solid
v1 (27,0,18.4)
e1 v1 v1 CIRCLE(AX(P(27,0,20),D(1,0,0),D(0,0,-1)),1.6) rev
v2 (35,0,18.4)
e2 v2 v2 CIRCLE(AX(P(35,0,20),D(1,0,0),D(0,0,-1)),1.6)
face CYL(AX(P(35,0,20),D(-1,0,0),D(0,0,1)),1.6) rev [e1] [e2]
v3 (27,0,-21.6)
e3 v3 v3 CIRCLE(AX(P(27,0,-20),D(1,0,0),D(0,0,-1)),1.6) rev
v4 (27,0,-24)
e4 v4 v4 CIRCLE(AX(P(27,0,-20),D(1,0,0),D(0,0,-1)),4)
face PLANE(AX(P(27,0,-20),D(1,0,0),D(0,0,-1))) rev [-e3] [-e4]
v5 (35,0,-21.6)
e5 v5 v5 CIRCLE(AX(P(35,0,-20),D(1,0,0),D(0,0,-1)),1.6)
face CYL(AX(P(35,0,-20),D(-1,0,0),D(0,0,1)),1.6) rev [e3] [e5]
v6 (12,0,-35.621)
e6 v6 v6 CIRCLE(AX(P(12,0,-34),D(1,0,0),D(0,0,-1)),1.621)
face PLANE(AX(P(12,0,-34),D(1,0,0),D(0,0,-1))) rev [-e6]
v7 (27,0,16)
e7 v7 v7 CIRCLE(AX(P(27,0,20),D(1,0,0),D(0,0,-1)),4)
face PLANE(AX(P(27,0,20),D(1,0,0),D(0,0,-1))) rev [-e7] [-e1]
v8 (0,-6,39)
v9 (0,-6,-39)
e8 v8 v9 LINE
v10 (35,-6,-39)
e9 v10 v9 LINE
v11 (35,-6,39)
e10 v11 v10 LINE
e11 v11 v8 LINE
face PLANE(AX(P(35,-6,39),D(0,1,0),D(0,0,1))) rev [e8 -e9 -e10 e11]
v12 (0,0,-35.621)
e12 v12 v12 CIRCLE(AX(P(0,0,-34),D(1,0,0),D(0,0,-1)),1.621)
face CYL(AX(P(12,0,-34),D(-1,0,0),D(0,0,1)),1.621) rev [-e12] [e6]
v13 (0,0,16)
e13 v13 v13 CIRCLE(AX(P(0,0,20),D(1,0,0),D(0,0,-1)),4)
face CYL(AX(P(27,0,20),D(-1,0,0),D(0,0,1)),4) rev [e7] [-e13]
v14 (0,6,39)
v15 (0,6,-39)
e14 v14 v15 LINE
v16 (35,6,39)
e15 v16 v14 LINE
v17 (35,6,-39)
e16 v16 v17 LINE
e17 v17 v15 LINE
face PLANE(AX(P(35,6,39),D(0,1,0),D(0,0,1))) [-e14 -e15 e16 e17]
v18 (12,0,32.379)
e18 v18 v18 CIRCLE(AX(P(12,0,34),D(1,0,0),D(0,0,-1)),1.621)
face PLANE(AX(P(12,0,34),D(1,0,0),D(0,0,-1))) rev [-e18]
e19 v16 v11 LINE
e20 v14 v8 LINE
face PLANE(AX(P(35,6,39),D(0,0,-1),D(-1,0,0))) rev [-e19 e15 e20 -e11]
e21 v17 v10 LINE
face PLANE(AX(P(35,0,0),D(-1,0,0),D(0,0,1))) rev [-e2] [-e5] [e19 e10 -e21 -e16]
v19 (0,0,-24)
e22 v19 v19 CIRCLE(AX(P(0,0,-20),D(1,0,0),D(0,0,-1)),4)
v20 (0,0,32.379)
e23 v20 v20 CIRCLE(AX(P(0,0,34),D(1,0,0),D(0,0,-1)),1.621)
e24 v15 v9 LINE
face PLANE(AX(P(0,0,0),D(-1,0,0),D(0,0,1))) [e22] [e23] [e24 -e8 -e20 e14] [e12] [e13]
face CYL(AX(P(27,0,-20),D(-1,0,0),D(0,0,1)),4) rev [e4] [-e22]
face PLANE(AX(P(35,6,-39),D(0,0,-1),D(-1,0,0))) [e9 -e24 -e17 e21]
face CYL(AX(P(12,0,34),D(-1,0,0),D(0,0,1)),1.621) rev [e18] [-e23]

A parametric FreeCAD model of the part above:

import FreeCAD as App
import Part
import Sketcher
Q = App.Units.Quantity

doc = App.newDocument("Part")
params = doc.addObject("Spreadsheet::Sheet", "Params")
for row, (alias, value) in enumerate([
    ("sketch1_width", "12 mm"),
    ("sketch1_height", "78 mm"),
    ("pad1_length", "35 mm"),
    ("sketch2_diameter", "8 mm"),
    ("pocket1_length", "27 mm"),
    ("sketch3_diameter", "3.2 mm"),
    ("pocket2_length", "35 mm"),
    ("pocket3_length", "12 mm"),
], start=1):
    params.set(f"A{row}", alias)
    params.set(f"B{row}", "=" + value)
    params.setAlias(f"B{row}", alias)

body = doc.addObject("PartDesign::Body", "Body")

sketch1 = doc.addObject("Sketcher::SketchObject", "Sketch")
body.addObject(sketch1)
sketch1.AttachmentSupport = (doc.YZ_Plane, [""])
sketch1.MapMode = "FlatFace"
sketch1.addGeometry([
    Part.LineSegment(App.Vector(6, 39, 0), App.Vector(-6, 39, 0)),
    Part.LineSegment(App.Vector(-6, 39, 0), App.Vector(-6, -39, 0)),
    Part.LineSegment(App.Vector(-6, -39, 0), App.Vector(6, -39, 0)),
    Part.LineSegment(App.Vector(6, -39, 0), App.Vector(6, 39, 0)),
], False)
sketch1.addConstraint([
    Sketcher.Constraint("Coincident", 0, 2, 1, 1),
    Sketcher.Constraint("Coincident", 1, 2, 2, 1),
    Sketcher.Constraint("Coincident", 2, 2, 3, 1),
    Sketcher.Constraint("Coincident", 3, 2, 0, 1),
    Sketcher.Constraint("Horizontal", 0),
    Sketcher.Constraint("Vertical", 1),
    Sketcher.Constraint("Horizontal", 2),
    Sketcher.Constraint("Vertical", 3),
    Sketcher.Constraint("Symmetric", 0, 2, 2, 2, -1, 1),
    Sketcher.Constraint("DistanceX", 0, 2, 0, 1, Q("12 mm")),
    Sketcher.Constraint("DistanceY", 1, 2, 1, 1, Q("78 mm")),
])
sketch1.setExpression("Constraints[9]", "Params.sketch1_width")
sketch1.setExpression("Constraints[10]", "Params.sketch1_height")
pad1 = doc.addObject("PartDesign::Pad", "Pad")
body.addObject(pad1)
pad1.Profile = sketch1
pad1.setExpression("Length", "Params.pad1_length")

sketch2 = doc.addObject("Sketcher::SketchObject", "Sketch001")
body.addObject(sketch2)
sketch2.AttachmentSupport = (doc.YZ_Plane, [""])
sketch2.MapMode = "FlatFace"
sketch2.addGeometry([
    Part.Circle(App.Vector(0, 20, 0), App.Vector(0, 0, 1), 4),
    Part.Circle(App.Vector(0, -20, 0), App.Vector(0, 0, 1), 4),
], False)
sketch2.addConstraint([
    Sketcher.Constraint("Equal", 0, 1),
    Sketcher.Constraint("Symmetric", 0, 3, 1, 3, -1, 1),
    Sketcher.Constraint("PointOnObject", 0, 3, -2),
    Sketcher.Constraint("Diameter", 0, Q("8 mm")),
    Sketcher.Constraint("DistanceY", -1, 1, 0, 3, Q("20 mm")),
])
sketch2.setExpression("Constraints[3]", "Params.sketch2_diameter")
pocket1 = doc.addObject("PartDesign::Pocket", "Pocket")
body.addObject(pocket1)
pocket1.Profile = sketch2
pocket1.setExpression("Length", "Params.pocket1_length")
pocket1.Reversed = True

sketch3 = doc.addObject("Sketcher::SketchObject", "Sketch002")
body.addObject(sketch3)
sketch3.AttachmentSupport = (doc.YZ_Plane, [""])
sketch3.MapMode = "FlatFace"
sketch3.addGeometry([
    Part.Circle(App.Vector(0, 20, 0), App.Vector(0, 0, 1), 1.6),
    Part.Circle(App.Vector(0, -20, 0), App.Vector(0, 0, 1), 1.6),
], False)
sketch3.addConstraint([
    Sketcher.Constraint("Equal", 0, 1),
    Sketcher.Constraint("Symmetric", 0, 3, 1, 3, -1, 1),
    Sketcher.Constraint("PointOnObject", 0, 3, -2),
    Sketcher.Constraint("Diameter", 0, Q("3.2 mm")),
    Sketcher.Constraint("DistanceY", -1, 1, 0, 3, Q("20 mm")),
])
sketch3.setExpression("Constraints[3]", "Params.sketch3_diameter")
pocket2 = doc.addObject("PartDesign::Pocket", "Pocket001")
body.addObject(pocket2)
pocket2.Profile = sketch3
pocket2.setExpression("Length", "Params.pocket2_length")
pocket2.Reversed = True

sketch4 = doc.addObject("Sketcher::SketchObject", "Sketch003")
body.addObject(sketch4)
sketch4.AttachmentSupport = (doc.YZ_Plane, [""])
sketch4.MapMode = "FlatFace"
sketch4.addGeometry([
    Part.Circle(App.Vector(0, 34, 0), App.Vector(0, 0, 1), 1.6),
    Part.Circle(App.Vector(0, -34, 0), App.Vector(0, 0, 1), 1.6),
], False)
sketch4.addConstraint([
    Sketcher.Constraint("Equal", 0, 1),
    Sketcher.Constraint("Symmetric", 0, 3, 1, 3, -1, 1),
    Sketcher.Constraint("PointOnObject", 0, 3, -2),
    Sketcher.Constraint("Diameter", 0, Q("3.242 mm")),
    Sketcher.Constraint("DistanceY", -1, 1, 0, 3, Q("34 mm")),
])
pocket3 = doc.addObject("PartDesign::Pocket", "Pocket002")
body.addObject(pocket3)
pocket3.Profile = sketch4
pocket3.setExpression("Length", "Params.pocket3_length")
pocket3.Reversed = True

doc.recompute()
